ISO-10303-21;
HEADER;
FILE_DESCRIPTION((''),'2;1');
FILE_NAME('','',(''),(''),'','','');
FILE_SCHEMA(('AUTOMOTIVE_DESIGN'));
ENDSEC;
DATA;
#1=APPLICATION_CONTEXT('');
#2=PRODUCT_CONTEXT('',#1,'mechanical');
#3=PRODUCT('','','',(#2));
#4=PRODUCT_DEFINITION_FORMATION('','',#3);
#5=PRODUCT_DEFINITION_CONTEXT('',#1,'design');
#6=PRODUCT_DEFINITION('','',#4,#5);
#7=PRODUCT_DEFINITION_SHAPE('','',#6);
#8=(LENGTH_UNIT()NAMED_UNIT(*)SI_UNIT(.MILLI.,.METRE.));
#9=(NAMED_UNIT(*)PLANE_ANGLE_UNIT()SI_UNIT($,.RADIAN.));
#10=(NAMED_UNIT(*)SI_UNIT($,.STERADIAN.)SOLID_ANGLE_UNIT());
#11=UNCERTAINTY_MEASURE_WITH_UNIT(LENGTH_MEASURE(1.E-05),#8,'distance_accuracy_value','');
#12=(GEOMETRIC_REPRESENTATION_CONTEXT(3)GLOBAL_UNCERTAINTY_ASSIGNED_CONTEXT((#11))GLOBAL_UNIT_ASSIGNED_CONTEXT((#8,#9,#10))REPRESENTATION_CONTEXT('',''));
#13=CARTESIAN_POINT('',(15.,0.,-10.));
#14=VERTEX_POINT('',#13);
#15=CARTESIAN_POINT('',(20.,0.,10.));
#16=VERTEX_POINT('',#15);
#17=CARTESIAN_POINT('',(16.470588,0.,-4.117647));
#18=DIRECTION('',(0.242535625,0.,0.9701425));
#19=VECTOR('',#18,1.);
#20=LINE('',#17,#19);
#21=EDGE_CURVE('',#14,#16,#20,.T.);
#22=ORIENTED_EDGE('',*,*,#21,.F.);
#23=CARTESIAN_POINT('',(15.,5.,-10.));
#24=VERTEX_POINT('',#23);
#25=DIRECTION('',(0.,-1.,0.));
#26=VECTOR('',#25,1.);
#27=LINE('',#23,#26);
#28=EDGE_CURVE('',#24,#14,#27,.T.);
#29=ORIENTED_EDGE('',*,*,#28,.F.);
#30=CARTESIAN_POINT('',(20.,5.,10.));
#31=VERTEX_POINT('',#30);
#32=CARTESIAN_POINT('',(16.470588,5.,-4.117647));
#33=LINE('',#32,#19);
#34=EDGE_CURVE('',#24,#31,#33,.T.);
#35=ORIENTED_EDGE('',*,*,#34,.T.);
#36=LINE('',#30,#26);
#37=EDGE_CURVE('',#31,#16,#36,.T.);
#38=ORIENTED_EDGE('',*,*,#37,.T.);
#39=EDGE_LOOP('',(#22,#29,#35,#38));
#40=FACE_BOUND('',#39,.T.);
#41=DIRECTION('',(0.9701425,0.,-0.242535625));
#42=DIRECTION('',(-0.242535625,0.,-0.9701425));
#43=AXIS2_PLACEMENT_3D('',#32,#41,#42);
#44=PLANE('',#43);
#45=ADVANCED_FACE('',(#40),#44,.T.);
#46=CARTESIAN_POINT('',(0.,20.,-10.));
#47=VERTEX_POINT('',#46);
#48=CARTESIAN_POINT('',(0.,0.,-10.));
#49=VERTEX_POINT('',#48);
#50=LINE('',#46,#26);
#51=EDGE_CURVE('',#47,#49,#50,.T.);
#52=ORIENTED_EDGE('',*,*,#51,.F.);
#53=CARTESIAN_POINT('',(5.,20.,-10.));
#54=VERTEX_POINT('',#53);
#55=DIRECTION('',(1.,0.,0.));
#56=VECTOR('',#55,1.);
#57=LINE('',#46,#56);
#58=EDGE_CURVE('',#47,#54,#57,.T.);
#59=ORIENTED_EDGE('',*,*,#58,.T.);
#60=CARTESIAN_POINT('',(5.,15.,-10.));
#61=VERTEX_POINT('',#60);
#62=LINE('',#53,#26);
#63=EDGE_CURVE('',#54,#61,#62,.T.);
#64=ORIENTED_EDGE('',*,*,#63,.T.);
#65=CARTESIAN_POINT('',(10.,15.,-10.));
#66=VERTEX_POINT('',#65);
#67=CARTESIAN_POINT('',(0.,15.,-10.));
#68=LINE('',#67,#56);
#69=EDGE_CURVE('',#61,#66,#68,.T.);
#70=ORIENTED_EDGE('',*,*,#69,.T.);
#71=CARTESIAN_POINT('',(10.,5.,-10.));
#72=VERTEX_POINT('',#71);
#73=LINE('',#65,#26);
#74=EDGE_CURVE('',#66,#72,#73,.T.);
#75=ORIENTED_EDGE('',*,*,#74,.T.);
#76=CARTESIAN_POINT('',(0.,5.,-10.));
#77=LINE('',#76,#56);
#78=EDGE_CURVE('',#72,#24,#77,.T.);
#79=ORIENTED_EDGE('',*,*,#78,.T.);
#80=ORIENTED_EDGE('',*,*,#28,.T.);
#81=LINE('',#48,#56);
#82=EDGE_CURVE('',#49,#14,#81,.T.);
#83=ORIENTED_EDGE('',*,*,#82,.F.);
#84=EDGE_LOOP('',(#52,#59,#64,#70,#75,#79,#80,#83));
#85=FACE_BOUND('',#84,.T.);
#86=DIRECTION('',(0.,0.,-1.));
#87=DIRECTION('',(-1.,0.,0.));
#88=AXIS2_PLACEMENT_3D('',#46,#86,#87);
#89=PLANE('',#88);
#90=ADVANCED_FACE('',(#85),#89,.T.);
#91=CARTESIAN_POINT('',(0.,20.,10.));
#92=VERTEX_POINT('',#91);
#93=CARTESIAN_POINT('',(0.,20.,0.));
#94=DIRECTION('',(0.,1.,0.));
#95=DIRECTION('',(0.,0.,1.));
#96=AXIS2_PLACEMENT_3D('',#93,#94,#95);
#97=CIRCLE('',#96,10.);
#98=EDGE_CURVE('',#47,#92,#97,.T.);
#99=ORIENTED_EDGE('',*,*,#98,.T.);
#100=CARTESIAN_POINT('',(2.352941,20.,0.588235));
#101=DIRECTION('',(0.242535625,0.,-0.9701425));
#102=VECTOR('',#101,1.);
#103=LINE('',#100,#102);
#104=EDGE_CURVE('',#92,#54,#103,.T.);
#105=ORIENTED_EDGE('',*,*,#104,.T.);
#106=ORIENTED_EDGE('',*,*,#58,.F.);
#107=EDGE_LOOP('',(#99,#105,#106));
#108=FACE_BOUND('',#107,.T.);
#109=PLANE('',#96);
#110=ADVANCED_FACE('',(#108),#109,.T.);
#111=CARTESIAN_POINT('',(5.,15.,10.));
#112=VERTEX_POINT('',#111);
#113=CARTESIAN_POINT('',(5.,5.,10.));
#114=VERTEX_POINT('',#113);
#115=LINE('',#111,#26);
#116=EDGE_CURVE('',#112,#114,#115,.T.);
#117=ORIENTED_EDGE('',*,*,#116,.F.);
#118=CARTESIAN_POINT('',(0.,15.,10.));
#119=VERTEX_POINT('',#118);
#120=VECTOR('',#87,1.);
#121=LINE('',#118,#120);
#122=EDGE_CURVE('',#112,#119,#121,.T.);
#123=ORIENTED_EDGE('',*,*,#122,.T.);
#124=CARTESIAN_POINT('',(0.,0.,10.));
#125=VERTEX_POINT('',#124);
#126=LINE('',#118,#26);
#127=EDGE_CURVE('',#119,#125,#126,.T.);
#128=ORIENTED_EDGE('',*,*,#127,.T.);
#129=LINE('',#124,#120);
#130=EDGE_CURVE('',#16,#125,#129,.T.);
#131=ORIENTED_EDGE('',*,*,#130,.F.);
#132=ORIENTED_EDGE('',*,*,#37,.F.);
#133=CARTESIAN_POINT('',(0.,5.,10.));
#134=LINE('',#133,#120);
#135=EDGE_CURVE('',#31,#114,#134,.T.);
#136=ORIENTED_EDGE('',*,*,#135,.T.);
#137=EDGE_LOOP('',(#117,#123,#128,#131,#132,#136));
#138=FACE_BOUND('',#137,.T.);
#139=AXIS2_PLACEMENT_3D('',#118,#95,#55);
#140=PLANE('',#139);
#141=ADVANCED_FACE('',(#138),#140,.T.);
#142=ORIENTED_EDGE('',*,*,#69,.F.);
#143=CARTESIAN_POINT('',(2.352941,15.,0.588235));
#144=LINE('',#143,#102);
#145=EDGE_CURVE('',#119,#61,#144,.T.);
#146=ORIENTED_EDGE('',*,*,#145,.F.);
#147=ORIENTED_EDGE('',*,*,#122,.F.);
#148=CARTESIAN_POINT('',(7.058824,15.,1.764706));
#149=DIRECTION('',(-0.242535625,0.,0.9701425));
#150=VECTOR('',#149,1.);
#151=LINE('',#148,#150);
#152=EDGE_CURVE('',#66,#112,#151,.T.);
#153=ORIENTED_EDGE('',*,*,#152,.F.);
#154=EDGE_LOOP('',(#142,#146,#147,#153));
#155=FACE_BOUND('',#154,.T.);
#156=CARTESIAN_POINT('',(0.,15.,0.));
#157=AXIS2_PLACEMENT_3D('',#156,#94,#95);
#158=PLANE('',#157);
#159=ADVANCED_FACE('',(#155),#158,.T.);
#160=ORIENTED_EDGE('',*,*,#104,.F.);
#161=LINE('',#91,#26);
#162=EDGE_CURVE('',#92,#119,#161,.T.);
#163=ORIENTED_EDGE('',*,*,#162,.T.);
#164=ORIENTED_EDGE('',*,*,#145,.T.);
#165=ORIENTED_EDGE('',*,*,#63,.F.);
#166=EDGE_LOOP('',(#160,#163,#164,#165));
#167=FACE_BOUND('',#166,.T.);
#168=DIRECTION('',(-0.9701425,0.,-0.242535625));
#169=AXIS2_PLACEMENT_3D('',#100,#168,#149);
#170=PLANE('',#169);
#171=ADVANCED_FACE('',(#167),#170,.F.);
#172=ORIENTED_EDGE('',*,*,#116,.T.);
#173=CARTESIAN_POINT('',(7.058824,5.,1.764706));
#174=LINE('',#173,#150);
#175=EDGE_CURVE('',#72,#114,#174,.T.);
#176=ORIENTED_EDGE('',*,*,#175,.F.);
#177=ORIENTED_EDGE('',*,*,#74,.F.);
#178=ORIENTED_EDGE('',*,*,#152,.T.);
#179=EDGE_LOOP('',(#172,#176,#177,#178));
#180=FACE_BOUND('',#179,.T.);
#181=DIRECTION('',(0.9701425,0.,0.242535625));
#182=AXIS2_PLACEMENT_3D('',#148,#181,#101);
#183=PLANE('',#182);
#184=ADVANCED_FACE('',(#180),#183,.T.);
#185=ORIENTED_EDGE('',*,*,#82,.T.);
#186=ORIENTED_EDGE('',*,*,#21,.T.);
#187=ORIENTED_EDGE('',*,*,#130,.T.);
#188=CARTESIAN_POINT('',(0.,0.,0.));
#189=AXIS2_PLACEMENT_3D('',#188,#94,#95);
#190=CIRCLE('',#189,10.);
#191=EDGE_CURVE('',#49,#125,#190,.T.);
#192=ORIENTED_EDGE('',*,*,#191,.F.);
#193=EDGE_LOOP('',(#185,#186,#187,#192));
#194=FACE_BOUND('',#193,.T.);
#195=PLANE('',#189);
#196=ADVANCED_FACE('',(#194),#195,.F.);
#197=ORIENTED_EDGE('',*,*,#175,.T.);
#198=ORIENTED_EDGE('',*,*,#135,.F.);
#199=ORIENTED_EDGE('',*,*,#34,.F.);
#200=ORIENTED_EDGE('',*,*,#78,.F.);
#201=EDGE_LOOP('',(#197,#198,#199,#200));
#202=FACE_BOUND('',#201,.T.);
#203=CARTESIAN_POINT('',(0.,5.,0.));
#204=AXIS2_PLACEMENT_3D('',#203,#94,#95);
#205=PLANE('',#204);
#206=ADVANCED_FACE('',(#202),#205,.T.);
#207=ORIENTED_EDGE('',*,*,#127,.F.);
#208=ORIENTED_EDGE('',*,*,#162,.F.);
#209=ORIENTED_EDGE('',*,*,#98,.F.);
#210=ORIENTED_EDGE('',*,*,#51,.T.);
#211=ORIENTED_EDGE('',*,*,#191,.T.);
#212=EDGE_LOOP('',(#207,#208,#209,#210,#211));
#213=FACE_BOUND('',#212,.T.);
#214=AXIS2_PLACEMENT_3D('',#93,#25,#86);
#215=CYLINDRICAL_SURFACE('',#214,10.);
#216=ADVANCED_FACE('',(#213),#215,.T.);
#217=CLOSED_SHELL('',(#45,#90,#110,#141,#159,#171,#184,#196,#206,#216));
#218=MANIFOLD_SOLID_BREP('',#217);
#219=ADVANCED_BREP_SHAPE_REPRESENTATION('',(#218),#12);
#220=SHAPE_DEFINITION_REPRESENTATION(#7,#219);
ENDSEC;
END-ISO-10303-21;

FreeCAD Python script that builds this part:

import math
import FreeCAD as App
import Part
import Sketcher
from FreeCAD import Vector

doc = App.newDocument("Part")
body = doc.addObject("PartDesign::Body", "Body")

# Sketch on XZ plane
sketch1 = doc.addObject("Sketcher::SketchObject", "Sketch")
body.addObject(sketch1)
sketch1.AttachmentSupport = (doc.XZ_Plane, [""])
sketch1.MapMode = "FlatFace"
sketch1.addGeometry(Part.LineSegment(Vector(5, -10, 0), Vector(0, -10, 0)), False)
sketch1.addGeometry(Part.ArcOfCircle(Part.Circle(Vector(0, 0, 0), Vector(0, 0, 1), 10), math.radians(90), math.radians(270)), False)
sketch1.addGeometry(Part.LineSegment(Vector(0, 10, 0), Vector(5, -10, 0)), False)
sketch1.addConstraint(Sketcher.Constraint("Tangent", 0, 2, 1, 2))
sketch1.addConstraint(Sketcher.Constraint("Coincident", 1, 1, 2, 1))
sketch1.addConstraint(Sketcher.Constraint("Coincident", 2, 2, 0, 1))
sketch1.addConstraint(Sketcher.Constraint("Horizontal", 0))
sketch1.addConstraint(Sketcher.Constraint("Coincident", 1, 3, -1, 1))
sketch1.addConstraint(Sketcher.Constraint("PointOnObject", 1, 1, -2))
sketch1.addConstraint(Sketcher.Constraint("Radius", 1, 10.0))
sketch1.addConstraint(Sketcher.Constraint("DistanceX", 0, 2, 0, 1, 5.0))
pad1 = doc.addObject("PartDesign::Pad", "Pad")
body.addObject(pad1)
pad1.Profile = sketch1
pad1.Length = 20
pad1.Reversed = True

# Sketch on XZ plane
sketch2 = doc.addObject("Sketcher::SketchObject", "Sketch001")
body.addObject(sketch2)
sketch2.AttachmentSupport = (doc.XZ_Plane, [""])
sketch2.MapMode = "FlatFace"
sketch2.addGeometry(Part.LineSegment(Vector(10, -10, 0), Vector(5, -10, 0)), False)
sketch2.addGeometry(Part.LineSegment(Vector(5, -10, 0), Vector(0, 10, 0)), False)
sketch2.addGeometry(Part.LineSegment(Vector(0, 10, 0), Vector(5, 10, 0)), False)
sketch2.addGeometry(Part.LineSegment(Vector(5, 10, 0), Vector(10, -10, 0)), False)
sketch2.addConstraint(Sketcher.Constraint("Coincident", 0, 2, 1, 1))
sketch2.addConstraint(Sketcher.Constraint("Coincident", 1, 2, 2, 1))
sketch2.addConstraint(Sketcher.Constraint("Coincident", 2, 2, 3, 1))
sketch2.addConstraint(Sketcher.Constraint("Coincident", 3, 2, 0, 1))
sketch2.addConstraint(Sketcher.Constraint("Horizontal", 0))
sketch2.addConstraint(Sketcher.Constraint("Horizontal", 2))
sketch2.addConstraint(Sketcher.Constraint("Symmetric", 0, 2, 2, 2, -1))
sketch2.addConstraint(Sketcher.Constraint("PointOnObject", 1, 2, -2))
sketch2.addConstraint(Sketcher.Constraint("Parallel", 1, 3))
sketch2.addConstraint(Sketcher.Constraint("DistanceX", 0, 2, 0, 1, 5.0))
sketch2.addConstraint(Sketcher.Constraint("DistanceY", 0, 2, -1, 1, 10.0))
pad2 = doc.addObject("PartDesign::Pad", "Pad001")
body.addObject(pad2)
pad2.Profile = sketch2
pad2.Length = 15
pad2.Reversed = True

# Sketch on XZ plane
sketch3 = doc.addObject("Sketcher::SketchObject", "Sketch002")
body.addObject(sketch3)
sketch3.AttachmentSupport = (doc.XZ_Plane, [""])
sketch3.MapMode = "FlatFace"
sketch3.addGeometry(Part.LineSegment(Vector(15, -10, 0), Vector(0, -10, 0)), False)
sketch3.addGeometry(Part.ArcOfCircle(Part.Circle(Vector(0, 0, 0), Vector(0, 0, 1), 10), math.radians(90), math.radians(270)), False)
sketch3.addGeometry(Part.LineSegment(Vector(0, 10, 0), Vector(20, 10, 0)), False)
sketch3.addGeometry(Part.LineSegment(Vector(20, 10, 0), Vector(15, -10, 0)), False)
sketch3.addConstraint(Sketcher.Constraint("Tangent", 0, 2, 1, 2))
sketch3.addConstraint(Sketcher.Constraint("Tangent", 1, 1, 2, 1))
sketch3.addConstraint(Sketcher.Constraint("Coincident", 2, 2, 3, 1))
sketch3.addConstraint(Sketcher.Constraint("Coincident", 3, 2, 0, 1))
sketch3.addConstraint(Sketcher.Constraint("Horizontal", 0))
sketch3.addConstraint(Sketcher.Constraint("Horizontal", 2))
sketch3.addConstraint(Sketcher.Constraint("Coincident", 1, 3, -1, 1))
sketch3.addConstraint(Sketcher.Constraint("Radius", 1, 10.0))
sketch3.addConstraint(Sketcher.Constraint("DistanceX", 0, 2, 0, 1, 15.0))
sketch3.addConstraint(Sketcher.Constraint("DistanceX", 2, 1, 2, 2, 20.0))
pad3 = doc.addObject("PartDesign::Pad", "Pad002")
body.addObject(pad3)
pad3.Profile = sketch3
pad3.Length = 5
pad3.Reversed = True

doc.recompute()
